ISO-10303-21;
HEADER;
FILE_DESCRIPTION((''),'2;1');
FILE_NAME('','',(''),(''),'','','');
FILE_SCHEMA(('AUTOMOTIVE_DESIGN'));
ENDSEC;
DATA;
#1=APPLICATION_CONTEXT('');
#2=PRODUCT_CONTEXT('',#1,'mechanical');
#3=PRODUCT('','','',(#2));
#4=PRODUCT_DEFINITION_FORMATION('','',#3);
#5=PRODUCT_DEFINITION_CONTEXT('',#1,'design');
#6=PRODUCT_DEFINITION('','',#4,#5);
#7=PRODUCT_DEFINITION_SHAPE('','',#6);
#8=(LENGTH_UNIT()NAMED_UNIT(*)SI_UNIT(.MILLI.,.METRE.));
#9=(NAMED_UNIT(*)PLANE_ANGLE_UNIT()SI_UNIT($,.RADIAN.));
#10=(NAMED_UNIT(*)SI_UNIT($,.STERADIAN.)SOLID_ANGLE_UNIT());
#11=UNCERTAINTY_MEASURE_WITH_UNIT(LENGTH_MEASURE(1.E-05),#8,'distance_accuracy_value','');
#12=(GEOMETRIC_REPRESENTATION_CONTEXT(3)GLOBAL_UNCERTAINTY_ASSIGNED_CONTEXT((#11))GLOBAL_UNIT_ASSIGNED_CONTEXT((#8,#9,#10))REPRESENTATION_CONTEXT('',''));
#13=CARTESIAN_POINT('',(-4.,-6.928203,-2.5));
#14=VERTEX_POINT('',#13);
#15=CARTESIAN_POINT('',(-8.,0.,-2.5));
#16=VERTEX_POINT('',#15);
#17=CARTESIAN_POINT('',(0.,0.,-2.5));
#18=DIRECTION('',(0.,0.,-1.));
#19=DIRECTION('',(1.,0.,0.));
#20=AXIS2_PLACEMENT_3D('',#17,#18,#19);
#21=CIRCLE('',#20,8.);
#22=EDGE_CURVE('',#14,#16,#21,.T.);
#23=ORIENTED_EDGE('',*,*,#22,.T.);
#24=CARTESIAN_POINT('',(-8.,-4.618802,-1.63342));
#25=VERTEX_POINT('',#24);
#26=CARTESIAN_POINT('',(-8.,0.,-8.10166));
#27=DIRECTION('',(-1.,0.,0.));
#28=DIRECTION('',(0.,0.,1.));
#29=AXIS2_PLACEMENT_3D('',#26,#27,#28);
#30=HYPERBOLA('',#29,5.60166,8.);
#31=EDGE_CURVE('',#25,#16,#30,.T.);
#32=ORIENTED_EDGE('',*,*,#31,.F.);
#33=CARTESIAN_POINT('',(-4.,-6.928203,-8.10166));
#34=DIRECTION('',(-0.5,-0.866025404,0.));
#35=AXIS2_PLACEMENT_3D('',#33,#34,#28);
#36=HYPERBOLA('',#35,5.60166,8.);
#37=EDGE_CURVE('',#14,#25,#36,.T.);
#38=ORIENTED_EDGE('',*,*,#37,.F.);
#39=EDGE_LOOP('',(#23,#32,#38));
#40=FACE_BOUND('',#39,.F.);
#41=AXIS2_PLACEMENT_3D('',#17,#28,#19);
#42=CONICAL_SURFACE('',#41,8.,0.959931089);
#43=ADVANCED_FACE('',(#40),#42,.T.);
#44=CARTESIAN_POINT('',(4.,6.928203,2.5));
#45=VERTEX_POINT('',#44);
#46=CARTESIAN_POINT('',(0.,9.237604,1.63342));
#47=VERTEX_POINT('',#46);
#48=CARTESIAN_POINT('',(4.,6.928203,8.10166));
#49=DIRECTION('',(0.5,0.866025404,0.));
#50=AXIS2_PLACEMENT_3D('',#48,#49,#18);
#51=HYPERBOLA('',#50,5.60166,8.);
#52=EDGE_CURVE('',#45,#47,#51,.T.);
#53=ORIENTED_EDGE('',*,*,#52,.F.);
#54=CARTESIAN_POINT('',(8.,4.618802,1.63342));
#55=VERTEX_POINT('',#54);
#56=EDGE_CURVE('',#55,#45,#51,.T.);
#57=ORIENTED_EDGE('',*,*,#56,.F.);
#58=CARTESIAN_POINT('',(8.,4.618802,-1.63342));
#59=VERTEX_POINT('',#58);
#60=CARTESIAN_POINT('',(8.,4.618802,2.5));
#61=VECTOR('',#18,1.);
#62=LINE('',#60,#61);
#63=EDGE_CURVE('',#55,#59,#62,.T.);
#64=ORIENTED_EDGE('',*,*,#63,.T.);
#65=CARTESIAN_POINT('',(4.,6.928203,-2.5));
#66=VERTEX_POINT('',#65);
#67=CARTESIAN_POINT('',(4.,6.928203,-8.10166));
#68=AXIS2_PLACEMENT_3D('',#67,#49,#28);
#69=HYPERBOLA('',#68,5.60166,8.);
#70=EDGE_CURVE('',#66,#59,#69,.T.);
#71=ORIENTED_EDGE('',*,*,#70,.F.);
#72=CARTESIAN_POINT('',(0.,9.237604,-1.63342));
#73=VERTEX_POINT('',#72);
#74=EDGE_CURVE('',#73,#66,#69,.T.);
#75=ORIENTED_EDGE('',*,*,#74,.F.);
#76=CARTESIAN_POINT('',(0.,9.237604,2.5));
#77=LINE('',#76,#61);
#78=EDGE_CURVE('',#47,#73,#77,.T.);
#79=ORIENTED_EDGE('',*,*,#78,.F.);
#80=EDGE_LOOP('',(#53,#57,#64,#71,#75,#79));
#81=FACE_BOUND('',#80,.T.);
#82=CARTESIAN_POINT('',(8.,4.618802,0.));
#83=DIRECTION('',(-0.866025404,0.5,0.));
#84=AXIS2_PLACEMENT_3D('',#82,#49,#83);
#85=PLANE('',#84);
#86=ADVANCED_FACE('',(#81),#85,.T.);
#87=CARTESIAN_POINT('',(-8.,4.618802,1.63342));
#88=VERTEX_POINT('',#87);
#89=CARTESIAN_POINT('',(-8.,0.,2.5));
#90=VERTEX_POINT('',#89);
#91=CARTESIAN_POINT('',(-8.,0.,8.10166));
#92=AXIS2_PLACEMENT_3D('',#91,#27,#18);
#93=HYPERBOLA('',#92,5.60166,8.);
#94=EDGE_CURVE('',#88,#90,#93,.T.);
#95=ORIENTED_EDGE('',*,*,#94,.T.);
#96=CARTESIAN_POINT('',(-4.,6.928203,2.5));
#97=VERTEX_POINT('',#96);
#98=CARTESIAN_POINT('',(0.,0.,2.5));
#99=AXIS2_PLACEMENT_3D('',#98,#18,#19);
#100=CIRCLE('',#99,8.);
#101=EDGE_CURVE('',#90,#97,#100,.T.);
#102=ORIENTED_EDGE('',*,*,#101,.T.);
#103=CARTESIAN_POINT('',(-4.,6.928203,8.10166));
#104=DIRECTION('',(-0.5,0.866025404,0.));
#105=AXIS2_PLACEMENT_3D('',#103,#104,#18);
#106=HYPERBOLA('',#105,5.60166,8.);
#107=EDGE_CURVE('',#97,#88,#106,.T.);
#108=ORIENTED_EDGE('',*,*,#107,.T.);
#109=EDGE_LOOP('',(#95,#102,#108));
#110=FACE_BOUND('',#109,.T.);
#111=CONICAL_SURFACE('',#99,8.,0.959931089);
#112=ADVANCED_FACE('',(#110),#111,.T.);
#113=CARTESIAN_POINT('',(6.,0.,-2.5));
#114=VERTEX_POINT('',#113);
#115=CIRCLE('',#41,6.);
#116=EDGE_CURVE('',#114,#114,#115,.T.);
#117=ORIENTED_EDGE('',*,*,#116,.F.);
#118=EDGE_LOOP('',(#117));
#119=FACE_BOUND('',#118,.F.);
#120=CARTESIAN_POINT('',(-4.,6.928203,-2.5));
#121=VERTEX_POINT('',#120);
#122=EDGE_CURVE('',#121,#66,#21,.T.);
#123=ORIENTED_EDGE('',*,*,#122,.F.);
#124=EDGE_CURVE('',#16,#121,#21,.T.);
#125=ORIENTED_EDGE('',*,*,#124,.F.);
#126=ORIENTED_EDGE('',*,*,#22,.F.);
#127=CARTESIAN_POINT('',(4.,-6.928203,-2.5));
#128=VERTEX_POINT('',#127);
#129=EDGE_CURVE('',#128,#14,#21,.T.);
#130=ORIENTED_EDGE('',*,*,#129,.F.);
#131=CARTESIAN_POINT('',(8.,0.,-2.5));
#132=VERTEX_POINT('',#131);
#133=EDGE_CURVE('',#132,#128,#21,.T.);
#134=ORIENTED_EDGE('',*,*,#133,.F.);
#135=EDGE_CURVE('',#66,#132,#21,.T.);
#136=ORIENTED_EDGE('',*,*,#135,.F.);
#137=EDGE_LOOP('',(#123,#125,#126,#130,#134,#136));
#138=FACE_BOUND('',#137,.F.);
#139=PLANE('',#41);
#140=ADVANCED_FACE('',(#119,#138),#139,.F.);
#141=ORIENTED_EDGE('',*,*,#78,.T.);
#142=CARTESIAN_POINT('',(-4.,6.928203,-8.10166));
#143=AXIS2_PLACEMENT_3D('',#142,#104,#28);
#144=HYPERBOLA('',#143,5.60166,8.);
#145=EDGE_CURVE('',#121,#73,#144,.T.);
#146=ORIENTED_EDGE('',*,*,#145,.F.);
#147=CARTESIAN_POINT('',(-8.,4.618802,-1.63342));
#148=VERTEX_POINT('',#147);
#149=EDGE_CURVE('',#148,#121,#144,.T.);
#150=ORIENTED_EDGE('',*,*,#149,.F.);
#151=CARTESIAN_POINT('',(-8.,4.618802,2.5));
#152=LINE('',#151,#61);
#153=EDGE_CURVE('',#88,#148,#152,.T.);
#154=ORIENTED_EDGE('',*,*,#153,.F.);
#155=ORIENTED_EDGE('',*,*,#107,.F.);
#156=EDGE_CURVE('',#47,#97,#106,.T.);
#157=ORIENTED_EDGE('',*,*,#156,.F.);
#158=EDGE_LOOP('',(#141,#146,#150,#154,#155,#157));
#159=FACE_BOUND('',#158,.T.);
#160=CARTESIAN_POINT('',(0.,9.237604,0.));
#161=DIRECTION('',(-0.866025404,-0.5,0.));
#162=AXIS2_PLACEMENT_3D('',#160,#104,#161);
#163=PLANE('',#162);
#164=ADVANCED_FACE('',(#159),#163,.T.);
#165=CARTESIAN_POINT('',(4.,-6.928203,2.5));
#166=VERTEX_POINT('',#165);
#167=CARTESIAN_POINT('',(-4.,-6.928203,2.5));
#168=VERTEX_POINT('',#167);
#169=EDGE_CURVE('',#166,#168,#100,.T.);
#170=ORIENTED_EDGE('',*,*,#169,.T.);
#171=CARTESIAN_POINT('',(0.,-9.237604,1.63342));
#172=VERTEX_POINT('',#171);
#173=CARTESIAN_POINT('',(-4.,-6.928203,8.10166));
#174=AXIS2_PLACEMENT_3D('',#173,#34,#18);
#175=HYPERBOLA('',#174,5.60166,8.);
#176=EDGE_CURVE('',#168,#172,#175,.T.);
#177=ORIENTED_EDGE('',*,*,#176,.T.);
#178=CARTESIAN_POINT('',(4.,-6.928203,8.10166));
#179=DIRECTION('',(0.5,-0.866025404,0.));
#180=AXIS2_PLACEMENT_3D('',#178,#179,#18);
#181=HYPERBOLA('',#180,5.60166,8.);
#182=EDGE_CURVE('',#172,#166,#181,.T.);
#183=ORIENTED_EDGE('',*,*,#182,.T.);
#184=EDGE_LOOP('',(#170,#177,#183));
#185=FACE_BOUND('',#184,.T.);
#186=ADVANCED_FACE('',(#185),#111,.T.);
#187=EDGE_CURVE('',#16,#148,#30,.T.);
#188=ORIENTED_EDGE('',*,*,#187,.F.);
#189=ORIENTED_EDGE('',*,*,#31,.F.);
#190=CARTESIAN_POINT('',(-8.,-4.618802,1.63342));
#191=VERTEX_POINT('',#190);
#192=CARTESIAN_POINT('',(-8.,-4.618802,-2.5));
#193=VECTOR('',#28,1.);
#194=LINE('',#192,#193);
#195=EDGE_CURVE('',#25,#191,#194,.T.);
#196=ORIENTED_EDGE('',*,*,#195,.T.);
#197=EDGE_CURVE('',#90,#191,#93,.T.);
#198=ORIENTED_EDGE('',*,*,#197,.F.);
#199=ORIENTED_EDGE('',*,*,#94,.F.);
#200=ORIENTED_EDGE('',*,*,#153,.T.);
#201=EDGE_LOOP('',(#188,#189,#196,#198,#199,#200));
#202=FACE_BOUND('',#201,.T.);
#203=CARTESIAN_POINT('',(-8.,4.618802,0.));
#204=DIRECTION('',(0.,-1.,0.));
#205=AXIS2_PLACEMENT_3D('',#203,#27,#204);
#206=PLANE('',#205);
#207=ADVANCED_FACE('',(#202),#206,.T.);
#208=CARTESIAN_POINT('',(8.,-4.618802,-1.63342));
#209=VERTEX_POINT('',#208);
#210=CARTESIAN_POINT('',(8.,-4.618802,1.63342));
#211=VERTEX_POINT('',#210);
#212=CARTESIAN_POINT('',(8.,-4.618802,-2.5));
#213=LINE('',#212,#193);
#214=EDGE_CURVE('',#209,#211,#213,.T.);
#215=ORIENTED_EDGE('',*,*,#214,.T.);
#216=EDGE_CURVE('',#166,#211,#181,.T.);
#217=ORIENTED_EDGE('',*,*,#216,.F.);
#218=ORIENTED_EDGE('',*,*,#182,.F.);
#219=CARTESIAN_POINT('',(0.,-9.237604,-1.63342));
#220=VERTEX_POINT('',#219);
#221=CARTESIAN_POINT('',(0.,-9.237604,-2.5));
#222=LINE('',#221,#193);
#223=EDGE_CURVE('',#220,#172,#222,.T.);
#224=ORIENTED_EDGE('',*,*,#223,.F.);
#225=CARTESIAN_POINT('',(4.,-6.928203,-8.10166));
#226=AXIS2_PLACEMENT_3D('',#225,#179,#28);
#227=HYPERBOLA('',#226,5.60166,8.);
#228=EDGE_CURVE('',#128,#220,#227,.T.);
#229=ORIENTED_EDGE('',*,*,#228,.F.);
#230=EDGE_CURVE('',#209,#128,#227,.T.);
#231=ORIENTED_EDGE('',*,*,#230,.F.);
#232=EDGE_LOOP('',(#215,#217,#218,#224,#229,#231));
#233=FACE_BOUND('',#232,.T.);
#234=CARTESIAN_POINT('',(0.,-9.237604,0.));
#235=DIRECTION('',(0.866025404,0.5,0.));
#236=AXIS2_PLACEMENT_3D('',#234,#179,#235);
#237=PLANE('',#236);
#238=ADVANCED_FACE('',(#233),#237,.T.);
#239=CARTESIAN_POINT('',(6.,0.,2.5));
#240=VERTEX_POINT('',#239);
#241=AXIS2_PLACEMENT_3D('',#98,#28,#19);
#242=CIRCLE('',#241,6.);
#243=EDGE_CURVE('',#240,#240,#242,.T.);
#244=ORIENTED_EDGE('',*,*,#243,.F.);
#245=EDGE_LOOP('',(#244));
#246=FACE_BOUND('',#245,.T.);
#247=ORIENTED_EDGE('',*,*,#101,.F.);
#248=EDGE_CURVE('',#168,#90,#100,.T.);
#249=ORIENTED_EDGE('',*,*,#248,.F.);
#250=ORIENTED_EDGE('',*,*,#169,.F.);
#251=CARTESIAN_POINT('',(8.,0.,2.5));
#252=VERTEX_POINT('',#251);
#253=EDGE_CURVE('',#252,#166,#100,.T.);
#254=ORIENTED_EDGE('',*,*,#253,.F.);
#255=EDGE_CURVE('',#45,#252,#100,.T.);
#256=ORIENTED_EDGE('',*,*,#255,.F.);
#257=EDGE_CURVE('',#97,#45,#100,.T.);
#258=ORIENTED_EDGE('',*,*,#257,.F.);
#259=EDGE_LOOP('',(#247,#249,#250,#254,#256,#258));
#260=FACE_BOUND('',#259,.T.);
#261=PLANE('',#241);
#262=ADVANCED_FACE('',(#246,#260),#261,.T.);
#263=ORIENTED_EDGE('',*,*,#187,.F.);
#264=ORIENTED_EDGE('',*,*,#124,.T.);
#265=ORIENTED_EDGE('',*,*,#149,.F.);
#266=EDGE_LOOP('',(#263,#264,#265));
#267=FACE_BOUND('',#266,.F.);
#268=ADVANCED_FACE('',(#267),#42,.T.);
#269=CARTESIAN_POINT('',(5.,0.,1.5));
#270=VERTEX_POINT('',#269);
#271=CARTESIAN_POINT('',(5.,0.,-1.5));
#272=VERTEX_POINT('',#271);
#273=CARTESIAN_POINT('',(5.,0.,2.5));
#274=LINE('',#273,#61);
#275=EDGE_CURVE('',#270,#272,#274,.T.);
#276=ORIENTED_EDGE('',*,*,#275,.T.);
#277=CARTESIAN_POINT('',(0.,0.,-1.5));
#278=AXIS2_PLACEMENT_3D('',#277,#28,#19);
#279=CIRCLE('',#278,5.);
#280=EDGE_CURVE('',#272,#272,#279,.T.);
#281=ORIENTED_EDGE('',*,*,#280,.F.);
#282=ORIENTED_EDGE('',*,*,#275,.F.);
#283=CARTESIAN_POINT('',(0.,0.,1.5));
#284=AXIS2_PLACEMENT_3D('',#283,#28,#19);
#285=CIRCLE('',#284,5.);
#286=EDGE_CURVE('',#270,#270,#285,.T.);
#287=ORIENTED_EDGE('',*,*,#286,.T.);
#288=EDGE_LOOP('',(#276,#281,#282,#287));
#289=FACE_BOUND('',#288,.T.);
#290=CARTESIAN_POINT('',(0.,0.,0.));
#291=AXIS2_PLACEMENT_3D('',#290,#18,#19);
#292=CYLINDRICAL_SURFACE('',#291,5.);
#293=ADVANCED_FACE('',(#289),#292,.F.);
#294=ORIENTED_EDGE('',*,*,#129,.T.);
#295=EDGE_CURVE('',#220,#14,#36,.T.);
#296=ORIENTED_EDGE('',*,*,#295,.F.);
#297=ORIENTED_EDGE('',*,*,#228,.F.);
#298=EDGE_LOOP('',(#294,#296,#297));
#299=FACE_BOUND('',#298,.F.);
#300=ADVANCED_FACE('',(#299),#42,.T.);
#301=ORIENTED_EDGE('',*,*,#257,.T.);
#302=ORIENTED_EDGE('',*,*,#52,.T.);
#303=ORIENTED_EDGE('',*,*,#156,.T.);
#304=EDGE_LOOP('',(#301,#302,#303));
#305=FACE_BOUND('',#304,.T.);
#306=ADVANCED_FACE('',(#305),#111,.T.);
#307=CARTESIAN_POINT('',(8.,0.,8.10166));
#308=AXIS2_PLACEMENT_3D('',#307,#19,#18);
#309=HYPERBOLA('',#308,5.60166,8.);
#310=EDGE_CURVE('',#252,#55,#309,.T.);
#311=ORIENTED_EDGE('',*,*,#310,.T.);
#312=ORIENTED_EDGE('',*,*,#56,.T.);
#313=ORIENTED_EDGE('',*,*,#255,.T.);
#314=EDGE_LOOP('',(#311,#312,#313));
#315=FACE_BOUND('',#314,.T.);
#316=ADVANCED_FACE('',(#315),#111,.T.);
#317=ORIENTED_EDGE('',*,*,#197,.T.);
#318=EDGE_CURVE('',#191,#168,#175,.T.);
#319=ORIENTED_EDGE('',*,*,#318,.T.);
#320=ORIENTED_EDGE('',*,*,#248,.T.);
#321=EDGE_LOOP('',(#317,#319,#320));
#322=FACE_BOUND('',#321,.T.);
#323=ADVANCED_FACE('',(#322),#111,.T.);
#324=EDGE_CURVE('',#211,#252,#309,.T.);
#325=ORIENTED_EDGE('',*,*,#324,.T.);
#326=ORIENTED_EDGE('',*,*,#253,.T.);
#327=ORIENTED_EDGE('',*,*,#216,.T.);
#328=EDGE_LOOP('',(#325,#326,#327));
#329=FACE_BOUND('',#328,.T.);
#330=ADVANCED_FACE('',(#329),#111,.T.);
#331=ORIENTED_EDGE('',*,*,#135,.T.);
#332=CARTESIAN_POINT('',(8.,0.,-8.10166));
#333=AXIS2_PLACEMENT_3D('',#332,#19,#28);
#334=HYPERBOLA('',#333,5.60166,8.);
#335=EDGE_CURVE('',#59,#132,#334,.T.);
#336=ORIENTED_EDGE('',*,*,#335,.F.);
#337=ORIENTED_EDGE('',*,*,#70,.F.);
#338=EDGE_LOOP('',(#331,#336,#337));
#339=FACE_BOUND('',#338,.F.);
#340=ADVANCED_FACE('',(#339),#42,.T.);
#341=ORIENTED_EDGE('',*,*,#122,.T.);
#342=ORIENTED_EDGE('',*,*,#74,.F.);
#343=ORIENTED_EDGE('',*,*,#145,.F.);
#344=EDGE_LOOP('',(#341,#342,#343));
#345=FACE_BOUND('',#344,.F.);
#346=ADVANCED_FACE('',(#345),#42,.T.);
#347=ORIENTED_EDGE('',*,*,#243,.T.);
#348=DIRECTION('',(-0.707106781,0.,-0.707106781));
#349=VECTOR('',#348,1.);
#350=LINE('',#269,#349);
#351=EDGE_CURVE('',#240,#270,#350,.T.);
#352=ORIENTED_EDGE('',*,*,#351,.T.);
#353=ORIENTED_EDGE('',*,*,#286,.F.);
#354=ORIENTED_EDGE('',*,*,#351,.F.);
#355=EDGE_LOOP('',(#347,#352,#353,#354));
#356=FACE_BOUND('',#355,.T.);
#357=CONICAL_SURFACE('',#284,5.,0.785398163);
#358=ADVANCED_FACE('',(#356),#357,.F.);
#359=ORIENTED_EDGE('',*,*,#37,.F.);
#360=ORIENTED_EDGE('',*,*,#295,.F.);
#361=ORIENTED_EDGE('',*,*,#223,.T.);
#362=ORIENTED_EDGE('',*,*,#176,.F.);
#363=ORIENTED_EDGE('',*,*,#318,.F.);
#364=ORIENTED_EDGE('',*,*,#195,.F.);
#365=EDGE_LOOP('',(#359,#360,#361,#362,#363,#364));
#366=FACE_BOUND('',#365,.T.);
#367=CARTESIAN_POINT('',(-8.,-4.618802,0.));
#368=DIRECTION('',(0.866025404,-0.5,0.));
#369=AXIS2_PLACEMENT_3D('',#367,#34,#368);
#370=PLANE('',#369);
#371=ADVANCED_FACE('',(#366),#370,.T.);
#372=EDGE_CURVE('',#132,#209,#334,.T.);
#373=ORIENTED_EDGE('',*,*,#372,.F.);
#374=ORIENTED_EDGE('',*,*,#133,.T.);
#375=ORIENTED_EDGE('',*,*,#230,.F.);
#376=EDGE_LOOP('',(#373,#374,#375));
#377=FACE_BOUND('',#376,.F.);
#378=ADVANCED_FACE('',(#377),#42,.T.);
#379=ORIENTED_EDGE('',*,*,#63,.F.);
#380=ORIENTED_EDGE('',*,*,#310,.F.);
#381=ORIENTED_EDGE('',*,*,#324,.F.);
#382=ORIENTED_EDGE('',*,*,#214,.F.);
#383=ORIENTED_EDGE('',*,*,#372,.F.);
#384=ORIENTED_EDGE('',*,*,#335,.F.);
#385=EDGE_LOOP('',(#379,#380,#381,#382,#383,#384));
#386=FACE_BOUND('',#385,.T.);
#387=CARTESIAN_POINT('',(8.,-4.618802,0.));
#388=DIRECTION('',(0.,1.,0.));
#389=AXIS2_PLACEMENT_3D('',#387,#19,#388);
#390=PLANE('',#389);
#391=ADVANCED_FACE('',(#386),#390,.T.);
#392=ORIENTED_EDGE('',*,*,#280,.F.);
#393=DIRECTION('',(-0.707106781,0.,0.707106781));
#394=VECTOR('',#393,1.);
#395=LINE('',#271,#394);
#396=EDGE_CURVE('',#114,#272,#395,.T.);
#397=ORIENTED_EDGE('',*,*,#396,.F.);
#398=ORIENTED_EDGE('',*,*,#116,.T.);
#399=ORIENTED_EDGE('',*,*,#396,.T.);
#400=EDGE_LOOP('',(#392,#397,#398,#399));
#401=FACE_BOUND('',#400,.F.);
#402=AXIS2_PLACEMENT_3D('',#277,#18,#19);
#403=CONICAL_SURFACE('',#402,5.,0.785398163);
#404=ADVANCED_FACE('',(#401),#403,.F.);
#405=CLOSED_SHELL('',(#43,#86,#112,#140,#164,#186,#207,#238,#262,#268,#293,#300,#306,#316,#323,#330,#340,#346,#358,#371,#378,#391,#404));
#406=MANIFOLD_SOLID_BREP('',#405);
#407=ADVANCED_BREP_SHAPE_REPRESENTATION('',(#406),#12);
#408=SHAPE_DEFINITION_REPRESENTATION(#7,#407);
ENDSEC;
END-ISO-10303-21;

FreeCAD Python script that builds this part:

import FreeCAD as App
import Part
import Sketcher
Q = App.Units.Quantity


def edges_at(feature, points):
    """Names of the edges that pass closest to the given points."""
    edges = feature.Shape.Edges
    near = lambda p: min(range(len(edges)), key=lambda i: edges[i].distToShape(Part.Vertex(*p))[0])
    return sorted({f"Edge{near(p) + 1}" for p in points})

doc = App.newDocument("Part")
params = doc.addObject("Spreadsheet::Sheet", "Params")
for row, (alias, value) in enumerate([
    ("sketch1_diameter", "10 mm"),
    ("pad1_length", "5 mm"),
    ("sketch2_diameter", "16 mm"),
    ("pocket1_length", "6 mm"),
    ("pocket1_taper", "55 deg"),
    ("chamfer_size", "1 mm"),
], start=1):
    params.set(f"A{row}", alias)
    params.set(f"B{row}", "=" + value)
    params.setAlias(f"B{row}", alias)

body = doc.addObject("PartDesign::Body", "Body")

# Sketch on XY plane
sketch1 = doc.addObject("Sketcher::SketchObject", "Sketch")
body.addObject(sketch1)
sketch1.AttachmentSupport = (doc.XY_Plane, [""])
sketch1.MapMode = "FlatFace"
sketch1.addGeometry([
    Part.LineSegment(App.Vector(-8, 5, 0), App.Vector(-8, -5, 0)),  # 0
    Part.LineSegment(App.Vector(-8, -5, 0), App.Vector(0, -9, 0)),  # 1
    Part.LineSegment(App.Vector(0, -9, 0), App.Vector(8, -5, 0)),  # 2
    Part.LineSegment(App.Vector(8, -5, 0), App.Vector(8, 5, 0)),  # 3
    Part.LineSegment(App.Vector(8, 5, 0), App.Vector(0, 9, 0)),  # 4
    Part.LineSegment(App.Vector(0, 9, 0), App.Vector(-8, 5, 0)),  # 5
    Part.Circle(App.Vector(0, 0, 0), App.Vector(0, 0, 1), 5),  # 6
], False)
sketch1.addConstraint([
    Sketcher.Constraint("Coincident", 0, 2, 1, 1),
    Sketcher.Constraint("Coincident", 1, 2, 2, 1),
    Sketcher.Constraint("Coincident", 2, 2, 3, 1),
    Sketcher.Constraint("Coincident", 3, 2, 4, 1),
    Sketcher.Constraint("Coincident", 4, 2, 5, 1),
    Sketcher.Constraint("Coincident", 5, 2, 0, 1),
    Sketcher.Constraint("Vertical", 0),
    Sketcher.Constraint("Vertical", 3),
    Sketcher.Constraint("Coincident", 6, 3, -1, 1),
    Sketcher.Constraint("Symmetric", 0, 2, 3, 2, -1, 1),
    Sketcher.Constraint("Symmetric", 1, 2, 4, 2, -1, 1),
    Sketcher.Constraint("PointOnObject", 1, 2, -2),
    Sketcher.Constraint("Parallel", 2, 5),
    Sketcher.Constraint("Horizontal", 0, 2, 2, 2),
    Sketcher.Constraint("Diameter", 6, 10.0),
    Sketcher.Constraint("Angle", 1, Q("-30 deg")),
    Sketcher.Constraint("DistanceX", 0, 2, -1, 1, 8.0),
    Sketcher.Constraint("DistanceY", 0, 2, 0, 1, 9.237604),
])
sketch1.setExpression("Constraints[14]", "Params.sketch1_diameter")
pad1 = doc.addObject("PartDesign::Pad", "Pad")
body.addObject(pad1)
pad1.Profile = sketch1
pad1.setExpression("Length", "Params.pad1_length")
pad1.Midplane = True

# Sketch on XY plane
sketch2 = doc.addObject("Sketcher::SketchObject", "Sketch001")
body.addObject(sketch2)
sketch2.AttachmentSupport = (doc.XY_Plane, [""])
sketch2.MapMode = "FlatFace"
sketch2.AttachmentOffset = App.Placement(App.Vector(0, 0, 2.5), App.Rotation())
sketch2.addGeometry([
    Part.LineSegment(App.Vector(-20, 21, 0), App.Vector(-20, -21, 0)),  # 0
    Part.LineSegment(App.Vector(-20, -21, 0), App.Vector(20, -21, 0)),  # 1
    Part.LineSegment(App.Vector(20, -21, 0), App.Vector(20, 21, 0)),  # 2
    Part.LineSegment(App.Vector(20, 21, 0), App.Vector(-20, 21, 0)),  # 3
    Part.Circle(App.Vector(0, 0, 0), App.Vector(0, 0, 1), 8),  # 4
], False)
sketch2.addConstraint([
    Sketcher.Constraint("Coincident", 0, 2, 1, 1),
    Sketcher.Constraint("Coincident", 1, 2, 2, 1),
    Sketcher.Constraint("Coincident", 2, 2, 3, 1),
    Sketcher.Constraint("Coincident", 3, 2, 0, 1),
    Sketcher.Constraint("Vertical", 0),
    Sketcher.Constraint("Horizontal", 1),
    Sketcher.Constraint("Vertical", 2),
    Sketcher.Constraint("Horizontal", 3),
    Sketcher.Constraint("Coincident", 4, 3, -1, 1),
    Sketcher.Constraint("Symmetric", 0, 2, 2, 2, -1, 1),
    Sketcher.Constraint("Diameter", 4, 16.0),
    Sketcher.Constraint("DistanceX", 1, 1, 1, 2, 40.128),
    Sketcher.Constraint("DistanceY", 0, 2, 0, 1, 42.604),
])
sketch2.setExpression("Constraints[10]", "Params.sketch2_diameter")
pocket1 = doc.addObject("PartDesign::Pocket", "Pocket")
body.addObject(pocket1)
pocket1.Profile = sketch2
pocket1.setExpression("Length", "Params.pocket1_length")
pocket1.setExpression("TaperAngle", "Params.pocket1_taper")
doc.recompute()

mirrored = doc.addObject("PartDesign::Mirrored", "Mirrored")
body.addObject(mirrored)
mirrored.Originals = [pocket1]
mirrored.MirrorPlane = (doc.XY_Plane, [""])
body.Tip = mirrored
doc.recompute()

chamfer = doc.addObject("PartDesign::Chamfer", "Chamfer")
body.addObject(chamfer)
chamfer.Base = (mirrored, edges_at(mirrored, [(-5, 0, -2.5), (-5, 0, 2.5)]))
chamfer.setExpression("Size", "Params.chamfer_size")

doc.recompute()
